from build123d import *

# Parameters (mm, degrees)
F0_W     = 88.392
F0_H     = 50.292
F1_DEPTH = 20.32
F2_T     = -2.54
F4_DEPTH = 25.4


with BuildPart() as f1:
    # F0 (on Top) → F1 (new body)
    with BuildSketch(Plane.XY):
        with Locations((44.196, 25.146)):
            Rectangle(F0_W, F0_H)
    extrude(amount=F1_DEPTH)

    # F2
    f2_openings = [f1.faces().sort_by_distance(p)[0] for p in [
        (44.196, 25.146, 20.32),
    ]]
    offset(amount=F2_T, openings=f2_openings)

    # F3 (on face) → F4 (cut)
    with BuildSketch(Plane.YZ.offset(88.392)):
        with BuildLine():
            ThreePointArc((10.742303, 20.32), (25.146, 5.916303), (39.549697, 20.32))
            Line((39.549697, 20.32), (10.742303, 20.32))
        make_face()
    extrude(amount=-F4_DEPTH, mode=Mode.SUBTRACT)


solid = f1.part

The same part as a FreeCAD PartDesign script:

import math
import FreeCAD as App
import Part
import Sketcher
Q = App.Units.Quantity


def faces_at(feature, points):
    """Names of the faces that lie closest to the given points."""
    faces = feature.Shape.Faces
    near = lambda p: min(range(len(faces)), key=lambda i: faces[i].distToShape(Part.Vertex(*p))[0])
    return sorted({f"Face{near(p) + 1}" for p in points})

doc = App.newDocument("Part")
body = doc.addObject("PartDesign::Body", "Body")

# Sketch on XY plane
sketch1 = doc.addObject("Sketcher::SketchObject", "Sketch")
body.addObject(sketch1)
sketch1.AttachmentSupport = (doc.XY_Plane, [""])
sketch1.MapMode = "FlatFace"
sketch1.addGeometry(Part.LineSegment(App.Vector(0, 50, 0), App.Vector(0, 0, 0)), False)
sketch1.addGeometry(Part.LineSegment(App.Vector(0, 0, 0), App.Vector(88, 0, 0)), False)
sketch1.addGeometry(Part.LineSegment(App.Vector(88, 0, 0), App.Vector(88, 50, 0)), False)
sketch1.addGeometry(Part.LineSegment(App.Vector(88, 50, 0), App.Vector(0, 50, 0)), False)
sketch1.addConstraint(Sketcher.Constraint("Coincident", 0, 2, 1, 1))
sketch1.addConstraint(Sketcher.Constraint("Coincident", 1, 2, 2, 1))
sketch1.addConstraint(Sketcher.Constraint("Coincident", 2, 2, 3, 1))
sketch1.addConstraint(Sketcher.Constraint("Coincident", 3, 2, 0, 1))
sketch1.addConstraint(Sketcher.Constraint("Vertical", 0))
sketch1.addConstraint(Sketcher.Constraint("Horizontal", 1))
sketch1.addConstraint(Sketcher.Constraint("Vertical", 2))
sketch1.addConstraint(Sketcher.Constraint("Horizontal", 3))
sketch1.addConstraint(Sketcher.Constraint("Coincident", 0, 2, -1, 1))
sketch1.addConstraint(Sketcher.Constraint("DistanceX", 1, 1, 1, 2, Q("3.48 in")))
sketch1.addConstraint(Sketcher.Constraint("DistanceY", 0, 2, 0, 1, Q("1.98 in")))
pad1 = doc.addObject("PartDesign::Pad", "Pad")
body.addObject(pad1)
pad1.Profile = sketch1
pad1.Length = Q("0.8 in")
doc.recompute()

thickness = doc.addObject("PartDesign::Thickness", "Thickness")
body.addObject(thickness)
thickness.Base = (pad1, faces_at(pad1, [(44.196, 25.146, 20.32)]))
thickness.Value = Q("0.1 in")
thickness.Reversed = True
thickness.Join = "Arc"

# Sketch on YZ plane
sketch2 = doc.addObject("Sketcher::SketchObject", "Sketch001")
body.addObject(sketch2)
sketch2.AttachmentSupport = (doc.YZ_Plane, [""])
sketch2.MapMode = "FlatFace"
sketch2.AttachmentOffset = App.Placement(App.Vector(0, 0, 3.48 * 25.4), App.Rotation())
sketch2.addGeometry(Part.ArcOfCircle(Part.Circle(App.Vector(25, 20, 0), App.Vector(0, 0, 1), 14), math.radians(180), math.radians(360)), False)
sketch2.addGeometry(Part.LineSegment(App.Vector(40, 20, 0), App.Vector(11, 20, 0)), False)
sketch2.addConstraint(Sketcher.Constraint("Coincident", 0, 1, 1, 2))
sketch2.addConstraint(Sketcher.Constraint("Coincident", 1, 1, 0, 2))
sketch2.addConstraint(Sketcher.Constraint("Horizontal", 1))
sketch2.addConstraint(Sketcher.Constraint("DistanceY", -1, 1, 0, 3, Q("0.8 in")))
sketch2.addConstraint(Sketcher.Constraint("DistanceY", -1, 1, 0, 1, Q("0.8 in")))
sketch2.addConstraint(Sketcher.Constraint("DistanceX", -1, 1, 0, 3, Q("0.99 in")))
sketch2.addConstraint(Sketcher.Constraint("Radius", 0, Q("14.403697 mm")))
pocket1 = doc.addObject("PartDesign::Pocket", "Pocket")
body.addObject(pocket1)
pocket1.Profile = sketch2
pocket1.Length = Q("1 in")

doc.recompute()
